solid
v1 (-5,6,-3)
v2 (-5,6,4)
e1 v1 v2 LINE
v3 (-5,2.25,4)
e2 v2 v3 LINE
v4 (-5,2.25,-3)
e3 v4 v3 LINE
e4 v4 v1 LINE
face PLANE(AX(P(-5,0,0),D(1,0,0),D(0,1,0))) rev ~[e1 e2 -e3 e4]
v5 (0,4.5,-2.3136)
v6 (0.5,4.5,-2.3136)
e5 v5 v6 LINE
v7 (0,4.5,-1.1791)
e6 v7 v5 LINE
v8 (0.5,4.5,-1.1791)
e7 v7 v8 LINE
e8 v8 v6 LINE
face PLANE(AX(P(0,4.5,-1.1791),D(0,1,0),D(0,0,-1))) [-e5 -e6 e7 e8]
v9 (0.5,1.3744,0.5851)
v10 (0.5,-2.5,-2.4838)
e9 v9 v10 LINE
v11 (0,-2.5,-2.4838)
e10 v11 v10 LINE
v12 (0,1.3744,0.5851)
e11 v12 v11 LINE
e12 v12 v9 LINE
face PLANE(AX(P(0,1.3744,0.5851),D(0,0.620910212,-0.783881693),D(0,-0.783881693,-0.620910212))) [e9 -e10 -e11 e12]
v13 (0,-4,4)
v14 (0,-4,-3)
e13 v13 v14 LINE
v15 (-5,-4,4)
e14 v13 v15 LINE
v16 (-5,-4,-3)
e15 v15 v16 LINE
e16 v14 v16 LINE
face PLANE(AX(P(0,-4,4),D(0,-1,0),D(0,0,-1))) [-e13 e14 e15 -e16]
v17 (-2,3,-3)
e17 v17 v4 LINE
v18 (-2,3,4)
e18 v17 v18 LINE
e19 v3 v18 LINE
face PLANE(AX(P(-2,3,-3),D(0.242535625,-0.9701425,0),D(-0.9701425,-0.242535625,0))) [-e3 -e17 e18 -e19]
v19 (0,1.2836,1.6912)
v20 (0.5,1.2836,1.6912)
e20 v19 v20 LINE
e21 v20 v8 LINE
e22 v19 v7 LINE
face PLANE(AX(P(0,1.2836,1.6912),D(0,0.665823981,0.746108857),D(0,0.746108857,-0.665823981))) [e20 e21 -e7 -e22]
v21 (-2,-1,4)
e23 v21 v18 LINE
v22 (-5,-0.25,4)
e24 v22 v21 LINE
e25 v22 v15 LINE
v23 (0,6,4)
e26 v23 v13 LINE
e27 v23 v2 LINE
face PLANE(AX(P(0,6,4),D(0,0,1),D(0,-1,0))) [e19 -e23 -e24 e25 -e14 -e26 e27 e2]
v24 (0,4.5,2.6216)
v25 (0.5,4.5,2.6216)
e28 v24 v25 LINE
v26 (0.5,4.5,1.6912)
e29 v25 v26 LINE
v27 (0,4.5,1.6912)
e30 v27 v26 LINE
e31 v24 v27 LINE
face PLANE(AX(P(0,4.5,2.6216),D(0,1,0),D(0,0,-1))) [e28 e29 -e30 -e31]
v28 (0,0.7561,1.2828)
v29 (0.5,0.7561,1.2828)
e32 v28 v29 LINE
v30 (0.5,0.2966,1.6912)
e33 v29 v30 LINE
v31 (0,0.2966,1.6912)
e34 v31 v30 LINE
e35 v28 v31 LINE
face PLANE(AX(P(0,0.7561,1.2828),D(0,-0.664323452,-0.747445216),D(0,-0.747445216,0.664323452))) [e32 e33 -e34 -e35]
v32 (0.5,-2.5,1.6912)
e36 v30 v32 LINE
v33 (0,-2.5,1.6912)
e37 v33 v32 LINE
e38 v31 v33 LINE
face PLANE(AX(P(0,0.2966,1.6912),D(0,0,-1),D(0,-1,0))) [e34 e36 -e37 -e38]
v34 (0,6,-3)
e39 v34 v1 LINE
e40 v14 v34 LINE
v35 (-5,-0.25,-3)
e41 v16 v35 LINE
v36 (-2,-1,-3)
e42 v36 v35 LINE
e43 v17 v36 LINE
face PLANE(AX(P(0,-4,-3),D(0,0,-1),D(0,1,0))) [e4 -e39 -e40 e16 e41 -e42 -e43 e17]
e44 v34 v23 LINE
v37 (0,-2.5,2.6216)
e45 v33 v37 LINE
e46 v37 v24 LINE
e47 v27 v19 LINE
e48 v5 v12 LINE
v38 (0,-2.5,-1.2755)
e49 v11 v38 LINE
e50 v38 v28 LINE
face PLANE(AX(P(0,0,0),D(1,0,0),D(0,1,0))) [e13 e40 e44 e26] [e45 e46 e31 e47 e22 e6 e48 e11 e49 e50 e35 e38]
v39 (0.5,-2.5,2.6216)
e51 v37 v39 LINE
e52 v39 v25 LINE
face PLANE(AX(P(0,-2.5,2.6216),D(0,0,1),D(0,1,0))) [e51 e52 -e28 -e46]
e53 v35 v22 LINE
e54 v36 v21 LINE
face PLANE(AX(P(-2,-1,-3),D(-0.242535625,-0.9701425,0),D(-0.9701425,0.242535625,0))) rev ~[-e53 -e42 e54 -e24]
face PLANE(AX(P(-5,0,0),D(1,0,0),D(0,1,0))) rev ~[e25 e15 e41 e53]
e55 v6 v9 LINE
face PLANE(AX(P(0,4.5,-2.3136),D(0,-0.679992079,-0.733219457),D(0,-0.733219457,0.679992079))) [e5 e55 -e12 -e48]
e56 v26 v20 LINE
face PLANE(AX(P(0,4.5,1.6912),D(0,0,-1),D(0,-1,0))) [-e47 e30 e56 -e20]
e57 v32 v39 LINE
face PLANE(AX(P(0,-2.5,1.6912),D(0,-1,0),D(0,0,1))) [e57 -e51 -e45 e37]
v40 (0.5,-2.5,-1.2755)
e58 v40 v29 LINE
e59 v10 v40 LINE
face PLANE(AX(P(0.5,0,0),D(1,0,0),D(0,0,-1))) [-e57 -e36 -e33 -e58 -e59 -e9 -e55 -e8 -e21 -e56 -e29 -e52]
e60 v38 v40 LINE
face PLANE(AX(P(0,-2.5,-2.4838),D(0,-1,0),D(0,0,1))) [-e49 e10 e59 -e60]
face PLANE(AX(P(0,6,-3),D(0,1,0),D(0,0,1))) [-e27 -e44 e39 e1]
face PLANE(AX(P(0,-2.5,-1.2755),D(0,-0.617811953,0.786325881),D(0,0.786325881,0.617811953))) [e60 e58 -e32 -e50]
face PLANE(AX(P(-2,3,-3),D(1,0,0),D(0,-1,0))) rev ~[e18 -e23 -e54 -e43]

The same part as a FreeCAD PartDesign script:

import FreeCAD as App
import Part
import Sketcher
Q = App.Units.Quantity

doc = App.newDocument("Part")
body = doc.addObject("PartDesign::Body", "Body")

# Sketch on YZ plane
sketch1 = doc.addObject("Sketcher::SketchObject", "Sketch")
body.addObject(sketch1)
sketch1.AttachmentSupport = (doc.YZ_Plane, [""])
sketch1.MapMode = "FlatFace"
sketch1.addGeometry(Part.LineSegment(App.Vector(6, -3, 0), App.Vector(6, 4, 0)), False)
sketch1.addGeometry(Part.LineSegment(App.Vector(6, 4, 0), App.Vector(-4, 4, 0)), False)
sketch1.addGeometry(Part.LineSegment(App.Vector(-4, 4, 0), App.Vector(-4, -3, 0)), False)
sketch1.addGeometry(Part.LineSegment(App.Vector(-4, -3, 0), App.Vector(6, -3, 0)), False)
sketch1.addConstraint(Sketcher.Constraint("Coincident", 0, 2, 1, 1))
sketch1.addConstraint(Sketcher.Constraint("Coincident", 1, 2, 2, 1))
sketch1.addConstraint(Sketcher.Constraint("Coincident", 2, 2, 3, 1))
sketch1.addConstraint(Sketcher.Constraint("Coincident", 3, 2, 0, 1))
sketch1.addConstraint(Sketcher.Constraint("Vertical", 0))
sketch1.addConstraint(Sketcher.Constraint("Horizontal", 1))
sketch1.addConstraint(Sketcher.Constraint("Vertical", 2))
sketch1.addConstraint(Sketcher.Constraint("Horizontal", 3))
sketch1.addConstraint(Sketcher.Constraint("DistanceX", 1, 2, 1, 1, Q("10 mm")))
sketch1.addConstraint(Sketcher.Constraint("DistanceY", 0, 1, 0, 2, Q("7 mm")))
sketch1.addConstraint(Sketcher.Constraint("DistanceX", -1, 1, 0, 2, Q("6 mm")))
sketch1.addConstraint(Sketcher.Constraint("DistanceY", -1, 1, 0, 2, Q("4 mm")))
pad1 = doc.addObject("PartDesign::Pad", "Pad")
body.addObject(pad1)
pad1.Profile = sketch1
pad1.Length = 5
pad1.Reversed = True

# Sketch on YZ plane
sketch2 = doc.addObject("Sketcher::SketchObject", "Sketch001")
body.addObject(sketch2)
sketch2.AttachmentSupport = (doc.YZ_Plane, [""])
sketch2.MapMode = "FlatFace"
sketch2.addGeometry(Part.LineSegment(App.Vector(-2.5, -1.3, 0), App.Vector(-2.5, -2.5, 0)), False)
sketch2.addGeometry(Part.LineSegment(App.Vector(-2.5, -2.5, 0), App.Vector(1.4, 0.6, 0)), False)
sketch2.addGeometry(Part.LineSegment(App.Vector(1.4, 0.6, 0), App.Vector(4.5, -2.3, 0)), False)
sketch2.addGeometry(Part.LineSegment(App.Vector(4.5, -2.3, 0), App.Vector(4.5, -1.2, 0)), False)
sketch2.addGeometry(Part.LineSegment(App.Vector(4.5, -1.2, 0), App.Vector(1.3, 1.7, 0)), False)
sketch2.addGeometry(Part.LineSegment(App.Vector(1.3, 1.7, 0), App.Vector(4.5, 1.7, 0)), False)
sketch2.addGeometry(Part.LineSegment(App.Vector(4.5, 1.7, 0), App.Vector(4.5, 2.6, 0)), False)
sketch2.addGeometry(Part.LineSegment(App.Vector(4.5, 2.6, 0), App.Vector(-2.5, 2.6, 0)), False)
sketch2.addGeometry(Part.LineSegment(App.Vector(-2.5, 2.6, 0), App.Vector(-2.5, 1.7, 0)), False)
sketch2.addGeometry(Part.LineSegment(App.Vector(-2.5, 1.7, 0), App.Vector(0.3, 1.7, 0)), False)
sketch2.addGeometry(Part.LineSegment(App.Vector(0.3, 1.7, 0), App.Vector(0.8, 1.3, 0)), False)
sketch2.addGeometry(Part.LineSegment(App.Vector(0.8, 1.3, 0), App.Vector(-2.5, -1.3, 0)), False)
sketch2.addConstraint(Sketcher.Constraint("Coincident", 0, 2, 1, 1))
sketch2.addConstraint(Sketcher.Constraint("Coincident", 1, 2, 2, 1))
sketch2.addConstraint(Sketcher.Constraint("Coincident", 2, 2, 3, 1))
sketch2.addConstraint(Sketcher.Constraint("Coincident", 3, 2, 4, 1))
sketch2.addConstraint(Sketcher.Constraint("Coincident", 4, 2, 5, 1))
sketch2.addConstraint(Sketcher.Constraint("Coincident", 5, 2, 6, 1))
sketch2.addConstraint(Sketcher.Constraint("Coincident", 6, 2, 7, 1))
sketch2.addConstraint(Sketcher.Constraint("Coincident", 7, 2, 8, 1))
sketch2.addConstraint(Sketcher.Constraint("Coincident", 8, 2, 9, 1))
sketch2.addConstraint(Sketcher.Constraint("Coincident", 9, 2, 10, 1))
sketch2.addConstraint(Sketcher.Constraint("Coincident", 10, 2, 11, 1))
sketch2.addConstraint(Sketcher.Constraint("Coincident", 11, 2, 0, 1))
sketch2.addConstraint(Sketcher.Constraint("Vertical", 0))
sketch2.addConstraint(Sketcher.Constraint("Vertical", 3))
sketch2.addConstraint(Sketcher.Constraint("Horizontal", 5))
sketch2.addConstraint(Sketcher.Constraint("Vertical", 6))
sketch2.addConstraint(Sketcher.Constraint("Horizontal", 7))
sketch2.addConstraint(Sketcher.Constraint("Vertical", 8))
sketch2.addConstraint(Sketcher.Constraint("Horizontal", 9))
sketch2.addConstraint(Sketcher.Constraint("Horizontal", 5, 2, 8, 2))
sketch2.addConstraint(Sketcher.Constraint("Vertical", 3, 2, 5, 2))
sketch2.addConstraint(Sketcher.Constraint("Vertical", 0, 2, 7, 2))
sketch2.addConstraint(Sketcher.Constraint("DistanceX", 7, 2, 7, 1, Q("7 mm")))
sketch2.addConstraint(Sketcher.Constraint("DistanceX", 0, 2, -1, 1, Q("2.5 mm")))
sketch2.addConstraint(Sketcher.Constraint("Angle", 10, Q("-41.6304 deg")))
sketch2.addConstraint(Sketcher.Constraint("Distance", 4, Q("4.311 mm")))
sketch2.addConstraint(Sketcher.Constraint("Distance", 11, Q("4.141 mm")))
sketch2.addConstraint(Sketcher.Constraint("DistanceX", 5, 1, 5, 2, Q("3.2164 mm")))
sketch2.addConstraint(Sketcher.Constraint("DistanceX", 9, 1, 9, 2, Q("2.7966 mm")))
sketch2.addConstraint(Sketcher.Constraint("DistanceY", 0, 2, 0, 1, Q("1.2083 mm")))
sketch2.addConstraint(Sketcher.Constraint("DistanceY", 3, 1, 3, 2, Q("1.1345 mm")))
sketch2.addConstraint(Sketcher.Constraint("DistanceY", 6, 1, 6, 2, Q("0.9304 mm")))
sketch2.addConstraint(Sketcher.Constraint("DistanceY", -1, 1, 1, 2, Q("0.585 mm")))
sketch2.addConstraint(Sketcher.Constraint("DistanceY", 3, 2, -1, 1, Q("1.179 mm")))
sketch2.addConstraint(Sketcher.Constraint("DistanceX", -1, 1, 10, 2, Q("0.756 mm")))
sketch2.addConstraint(Sketcher.Constraint("Distance", 1, Q("4.9426 mm")))
pad2 = doc.addObject("PartDesign::Pad", "Pad001")
body.addObject(pad2)
pad2.Profile = sketch2
pad2.Length = 0.5

# Sketch on XY plane
sketch3 = doc.addObject("Sketcher::SketchObject", "Sketch002")
body.addObject(sketch3)
sketch3.AttachmentSupport = (doc.XY_Plane, [""])
sketch3.MapMode = "FlatFace"
sketch3.AttachmentOffset = App.Placement(App.Vector(0, 0, -3), App.Rotation())
sketch3.addGeometry(Part.LineSegment(App.Vector(-5, 2.2, 0), App.Vector(-2, 3, 0)), False)
sketch3.addGeometry(Part.LineSegment(App.Vector(-2, 3, 0), App.Vector(-2, -1, 0)), False)
sketch3.addGeometry(Part.LineSegment(App.Vector(-2, -1, 0), App.Vector(-5, -0.2, 0)), False)
sketch3.addGeometry(Part.LineSegment(App.Vector(-5, -0.2, 0), App.Vector(-5, 2.2, 0)), False)
sketch3.addConstraint(Sketcher.Constraint("Coincident", 0, 2, 1, 1))
sketch3.addConstraint(Sketcher.Constraint("Coincident", 1, 2, 2, 1))
sketch3.addConstraint(Sketcher.Constraint("Coincident", 2, 2, 3, 1))
sketch3.addConstraint(Sketcher.Constraint("Coincident", 3, 2, 0, 1))
sketch3.addConstraint(Sketcher.Constraint("Vertical", 1))
sketch3.addConstraint(Sketcher.Constraint("Vertical", 3))
sketch3.addConstraint(Sketcher.Constraint("Equal", 0, 2))
sketch3.addConstraint(Sketcher.Constraint("DistanceY", 1, 2, 1, 1, Q("4 mm")))
sketch3.addConstraint(Sketcher.Constraint("DistanceY", 3, 1, 3, 2, Q("2.5 mm")))
sketch3.addConstraint(Sketcher.Constraint("DistanceY", -1, 1, 0, 2, Q("3 mm")))
sketch3.addConstraint(Sketcher.Constraint("DistanceX", 2, 2, 1, 2, Q("3 mm")))
sketch3.addConstraint(Sketcher.Constraint("DistanceX", 0, 2, -1, 1, Q("2 mm")))
pocket1 = doc.addObject("PartDesign::Pocket", "Pocket")
body.addObject(pocket1)
pocket1.Profile = sketch3
pocket1.Length = 10
pocket1.Reversed = True

doc.recompute()
